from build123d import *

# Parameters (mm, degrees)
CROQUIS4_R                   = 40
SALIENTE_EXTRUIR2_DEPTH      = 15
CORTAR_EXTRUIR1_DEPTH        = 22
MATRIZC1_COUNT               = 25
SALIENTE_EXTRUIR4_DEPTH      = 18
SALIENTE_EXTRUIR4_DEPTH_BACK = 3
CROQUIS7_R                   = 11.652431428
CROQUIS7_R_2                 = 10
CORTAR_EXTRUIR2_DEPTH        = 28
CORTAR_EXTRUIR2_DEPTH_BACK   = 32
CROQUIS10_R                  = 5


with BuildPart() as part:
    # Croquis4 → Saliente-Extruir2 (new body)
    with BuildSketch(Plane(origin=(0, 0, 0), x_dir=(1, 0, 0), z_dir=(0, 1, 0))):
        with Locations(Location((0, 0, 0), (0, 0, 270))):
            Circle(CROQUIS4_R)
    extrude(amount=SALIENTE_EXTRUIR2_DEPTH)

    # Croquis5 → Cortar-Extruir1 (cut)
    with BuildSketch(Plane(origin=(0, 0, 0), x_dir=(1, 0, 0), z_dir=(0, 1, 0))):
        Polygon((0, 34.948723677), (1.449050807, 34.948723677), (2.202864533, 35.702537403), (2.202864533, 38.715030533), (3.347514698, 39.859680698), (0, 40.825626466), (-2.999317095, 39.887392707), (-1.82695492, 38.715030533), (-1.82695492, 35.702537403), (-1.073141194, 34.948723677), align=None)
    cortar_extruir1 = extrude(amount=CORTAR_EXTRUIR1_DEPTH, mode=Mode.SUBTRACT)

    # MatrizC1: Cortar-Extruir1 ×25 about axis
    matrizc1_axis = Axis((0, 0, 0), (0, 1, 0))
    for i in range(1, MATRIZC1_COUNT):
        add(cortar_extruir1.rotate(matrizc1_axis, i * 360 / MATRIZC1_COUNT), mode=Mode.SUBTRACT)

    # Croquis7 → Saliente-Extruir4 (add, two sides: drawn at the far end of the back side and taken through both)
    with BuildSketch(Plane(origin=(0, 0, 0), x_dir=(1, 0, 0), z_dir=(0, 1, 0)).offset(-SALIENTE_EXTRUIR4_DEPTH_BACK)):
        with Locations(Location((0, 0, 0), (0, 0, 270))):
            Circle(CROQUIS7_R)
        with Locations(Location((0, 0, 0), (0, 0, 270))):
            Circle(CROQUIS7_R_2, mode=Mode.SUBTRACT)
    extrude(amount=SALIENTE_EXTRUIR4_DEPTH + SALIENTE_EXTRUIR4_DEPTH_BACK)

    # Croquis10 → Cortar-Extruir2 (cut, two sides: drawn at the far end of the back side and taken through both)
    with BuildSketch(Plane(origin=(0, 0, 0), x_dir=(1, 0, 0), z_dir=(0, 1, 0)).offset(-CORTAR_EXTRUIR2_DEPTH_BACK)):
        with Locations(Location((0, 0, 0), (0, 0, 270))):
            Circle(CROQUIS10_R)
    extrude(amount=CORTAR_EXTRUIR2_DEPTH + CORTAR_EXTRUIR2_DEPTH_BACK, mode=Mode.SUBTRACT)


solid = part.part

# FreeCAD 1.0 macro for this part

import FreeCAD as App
import Part
import Sketcher
from FreeCAD import Vector


def add_polygon(sketch, points):
    """Adds a closed chain of lines whose ends are joined by coincident constraints."""
    first, n = sketch.GeometryCount, len(points)
    for a, b in zip(points, points[1:] + points[:1]):
        sketch.addGeometry(Part.LineSegment(App.Vector(*a, 0), App.Vector(*b, 0)), False)
    for i in range(n):
        sketch.addConstraint(Sketcher.Constraint("Coincident", first + i, 2, first + (i + 1) % n, 1))

doc = App.newDocument("Part")
body = doc.addObject("PartDesign::Body", "Body")

sketch1 = body.newObject("Sketcher::SketchObject", "Sketch")
sketch1.AttachmentSupport = (doc.getObject("XZ_Plane"), [""])
sketch1.MapMode = "FlatFace"
sketch1.addGeometry(Part.Circle(Vector(0, 0, 0), Vector(0, 0, 1), 40), False)
sketch1.addConstraint(Sketcher.Constraint("Coincident", 0, 3, -1, 1))
sketch1.addConstraint(Sketcher.Constraint("Diameter", 0, 80.0))
pad1 = body.newObject("PartDesign::Pad", "Pad")
pad1.Profile = sketch1
pad1.Length = 15
pad1.Reversed = True

sketch2 = body.newObject("Sketcher::SketchObject", "Sketch001")
sketch2.AttachmentSupport = (doc.getObject("XZ_Plane"), [""])
sketch2.MapMode = "FlatFace"
add_polygon(sketch2, [(1.449051, -34.948724), (2.202865, -35.702537), (2.202865, -38.715031), (3.347515, -39.859681), (0, -40.825626), (-2.999317, -39.887393), (-1.826955, -38.715031), (-1.826955, -35.702537), (-1.073141, -34.948724)])
sketch2.addConstraint(Sketcher.Constraint("Vertical", 1))
sketch2.addConstraint(Sketcher.Constraint("Vertical", 6))
sketch2.addConstraint(Sketcher.Constraint("Horizontal", 8))
sketch2.addConstraint(Sketcher.Constraint("PointOnObject", 3, 2, -2))
sketch2.addConstraint(Sketcher.Constraint("Parallel", 0, 2))
sketch2.addConstraint(Sketcher.Constraint("Perpendicular", 2, 5))
sketch2.addConstraint(Sketcher.Constraint("Parallel", 5, 7))
sketch2.addConstraint(Sketcher.Constraint("Horizontal", 1, 2, 5, 2))
sketch2.addConstraint(Sketcher.Constraint("Horizontal", 0, 2, 6, 2))
sketch2.addConstraint(Sketcher.Constraint("Equal", 0, 7))
sketch2.addConstraint(Sketcher.Constraint("Distance", 2, 1.61878))
sketch2.addConstraint(Sketcher.Constraint("Distance", 4, 3.14264))
sketch2.addConstraint(Sketcher.Constraint("Distance", 5, 1.65797))
sketch2.addConstraint(Sketcher.Constraint("DistanceX", 8, 1, 8, 2, 2.522192))
sketch2.addConstraint(Sketcher.Constraint("DistanceY", 1, 2, 1, 1, 3.012493))
sketch2.addConstraint(Sketcher.Constraint("DistanceY", 1, 2, -1, 1, 38.715031))
sketch2.addConstraint(Sketcher.Constraint("DistanceX", 7, 2, -1, 1, 1.073141))
sketch2.addConstraint(Sketcher.Constraint("DistanceY", 3, 2, 0, 2, 5.123089))
pocket1 = body.newObject("PartDesign::Pocket", "Pocket")
pocket1.Profile = sketch2
pocket1.Length = 22
doc.recompute()

polarpattern = body.newObject("PartDesign::PolarPattern", "PolarPattern")
polarpattern.Originals = [pocket1]
polarpattern.Axis = (doc.getObject("Y_Axis"), [""])
polarpattern.Angle = 360
polarpattern.Occurrences = 25
body.Tip = polarpattern

sketch3 = body.newObject("Sketcher::SketchObject", "Sketch002")
sketch3.AttachmentSupport = (doc.getObject("XZ_Plane"), [""])
sketch3.MapMode = "FlatFace"
sketch3.addGeometry(Part.Circle(Vector(0, 0, 0), Vector(0, 0, 1), 11.652431), False)
sketch3.addGeometry(Part.Circle(Vector(0, 0, 0), Vector(0, 0, 1), 10), False)
sketch3.addConstraint(Sketcher.Constraint("Coincident", 0, 3, -1, 1))
sketch3.addConstraint(Sketcher.Constraint("Coincident", 1, 3, -1, 1))
sketch3.addConstraint(Sketcher.Constraint("Diameter", 1, 20.0))
sketch3.addConstraint(Sketcher.Constraint("Diameter", 0, 23.304863))
pad2 = body.newObject("PartDesign::Pad", "Pad001")
pad2.Profile = sketch3
pad2.Type = "TwoLengths"
pad2.Length = 18
pad2.Length2 = 3
pad2.Reversed = True

sketch4 = body.newObject("Sketcher::SketchObject", "Sketch003")
sketch4.AttachmentSupport = (doc.getObject("XZ_Plane"), [""])
sketch4.MapMode = "FlatFace"
sketch4.addGeometry(Part.Circle(Vector(0, 0, 0), Vector(0, 0, 1), 5), False)
sketch4.addConstraint(Sketcher.Constraint("Coincident", 0, 3, -1, 1))
sketch4.addConstraint(Sketcher.Constraint("Diameter", 0, 10.0))
pocket2 = body.newObject("PartDesign::Pocket", "Pocket001")
pocket2.Profile = sketch4
pocket2.Type = "ThroughAll"
pocket2.Midplane = True

doc.recompute()
